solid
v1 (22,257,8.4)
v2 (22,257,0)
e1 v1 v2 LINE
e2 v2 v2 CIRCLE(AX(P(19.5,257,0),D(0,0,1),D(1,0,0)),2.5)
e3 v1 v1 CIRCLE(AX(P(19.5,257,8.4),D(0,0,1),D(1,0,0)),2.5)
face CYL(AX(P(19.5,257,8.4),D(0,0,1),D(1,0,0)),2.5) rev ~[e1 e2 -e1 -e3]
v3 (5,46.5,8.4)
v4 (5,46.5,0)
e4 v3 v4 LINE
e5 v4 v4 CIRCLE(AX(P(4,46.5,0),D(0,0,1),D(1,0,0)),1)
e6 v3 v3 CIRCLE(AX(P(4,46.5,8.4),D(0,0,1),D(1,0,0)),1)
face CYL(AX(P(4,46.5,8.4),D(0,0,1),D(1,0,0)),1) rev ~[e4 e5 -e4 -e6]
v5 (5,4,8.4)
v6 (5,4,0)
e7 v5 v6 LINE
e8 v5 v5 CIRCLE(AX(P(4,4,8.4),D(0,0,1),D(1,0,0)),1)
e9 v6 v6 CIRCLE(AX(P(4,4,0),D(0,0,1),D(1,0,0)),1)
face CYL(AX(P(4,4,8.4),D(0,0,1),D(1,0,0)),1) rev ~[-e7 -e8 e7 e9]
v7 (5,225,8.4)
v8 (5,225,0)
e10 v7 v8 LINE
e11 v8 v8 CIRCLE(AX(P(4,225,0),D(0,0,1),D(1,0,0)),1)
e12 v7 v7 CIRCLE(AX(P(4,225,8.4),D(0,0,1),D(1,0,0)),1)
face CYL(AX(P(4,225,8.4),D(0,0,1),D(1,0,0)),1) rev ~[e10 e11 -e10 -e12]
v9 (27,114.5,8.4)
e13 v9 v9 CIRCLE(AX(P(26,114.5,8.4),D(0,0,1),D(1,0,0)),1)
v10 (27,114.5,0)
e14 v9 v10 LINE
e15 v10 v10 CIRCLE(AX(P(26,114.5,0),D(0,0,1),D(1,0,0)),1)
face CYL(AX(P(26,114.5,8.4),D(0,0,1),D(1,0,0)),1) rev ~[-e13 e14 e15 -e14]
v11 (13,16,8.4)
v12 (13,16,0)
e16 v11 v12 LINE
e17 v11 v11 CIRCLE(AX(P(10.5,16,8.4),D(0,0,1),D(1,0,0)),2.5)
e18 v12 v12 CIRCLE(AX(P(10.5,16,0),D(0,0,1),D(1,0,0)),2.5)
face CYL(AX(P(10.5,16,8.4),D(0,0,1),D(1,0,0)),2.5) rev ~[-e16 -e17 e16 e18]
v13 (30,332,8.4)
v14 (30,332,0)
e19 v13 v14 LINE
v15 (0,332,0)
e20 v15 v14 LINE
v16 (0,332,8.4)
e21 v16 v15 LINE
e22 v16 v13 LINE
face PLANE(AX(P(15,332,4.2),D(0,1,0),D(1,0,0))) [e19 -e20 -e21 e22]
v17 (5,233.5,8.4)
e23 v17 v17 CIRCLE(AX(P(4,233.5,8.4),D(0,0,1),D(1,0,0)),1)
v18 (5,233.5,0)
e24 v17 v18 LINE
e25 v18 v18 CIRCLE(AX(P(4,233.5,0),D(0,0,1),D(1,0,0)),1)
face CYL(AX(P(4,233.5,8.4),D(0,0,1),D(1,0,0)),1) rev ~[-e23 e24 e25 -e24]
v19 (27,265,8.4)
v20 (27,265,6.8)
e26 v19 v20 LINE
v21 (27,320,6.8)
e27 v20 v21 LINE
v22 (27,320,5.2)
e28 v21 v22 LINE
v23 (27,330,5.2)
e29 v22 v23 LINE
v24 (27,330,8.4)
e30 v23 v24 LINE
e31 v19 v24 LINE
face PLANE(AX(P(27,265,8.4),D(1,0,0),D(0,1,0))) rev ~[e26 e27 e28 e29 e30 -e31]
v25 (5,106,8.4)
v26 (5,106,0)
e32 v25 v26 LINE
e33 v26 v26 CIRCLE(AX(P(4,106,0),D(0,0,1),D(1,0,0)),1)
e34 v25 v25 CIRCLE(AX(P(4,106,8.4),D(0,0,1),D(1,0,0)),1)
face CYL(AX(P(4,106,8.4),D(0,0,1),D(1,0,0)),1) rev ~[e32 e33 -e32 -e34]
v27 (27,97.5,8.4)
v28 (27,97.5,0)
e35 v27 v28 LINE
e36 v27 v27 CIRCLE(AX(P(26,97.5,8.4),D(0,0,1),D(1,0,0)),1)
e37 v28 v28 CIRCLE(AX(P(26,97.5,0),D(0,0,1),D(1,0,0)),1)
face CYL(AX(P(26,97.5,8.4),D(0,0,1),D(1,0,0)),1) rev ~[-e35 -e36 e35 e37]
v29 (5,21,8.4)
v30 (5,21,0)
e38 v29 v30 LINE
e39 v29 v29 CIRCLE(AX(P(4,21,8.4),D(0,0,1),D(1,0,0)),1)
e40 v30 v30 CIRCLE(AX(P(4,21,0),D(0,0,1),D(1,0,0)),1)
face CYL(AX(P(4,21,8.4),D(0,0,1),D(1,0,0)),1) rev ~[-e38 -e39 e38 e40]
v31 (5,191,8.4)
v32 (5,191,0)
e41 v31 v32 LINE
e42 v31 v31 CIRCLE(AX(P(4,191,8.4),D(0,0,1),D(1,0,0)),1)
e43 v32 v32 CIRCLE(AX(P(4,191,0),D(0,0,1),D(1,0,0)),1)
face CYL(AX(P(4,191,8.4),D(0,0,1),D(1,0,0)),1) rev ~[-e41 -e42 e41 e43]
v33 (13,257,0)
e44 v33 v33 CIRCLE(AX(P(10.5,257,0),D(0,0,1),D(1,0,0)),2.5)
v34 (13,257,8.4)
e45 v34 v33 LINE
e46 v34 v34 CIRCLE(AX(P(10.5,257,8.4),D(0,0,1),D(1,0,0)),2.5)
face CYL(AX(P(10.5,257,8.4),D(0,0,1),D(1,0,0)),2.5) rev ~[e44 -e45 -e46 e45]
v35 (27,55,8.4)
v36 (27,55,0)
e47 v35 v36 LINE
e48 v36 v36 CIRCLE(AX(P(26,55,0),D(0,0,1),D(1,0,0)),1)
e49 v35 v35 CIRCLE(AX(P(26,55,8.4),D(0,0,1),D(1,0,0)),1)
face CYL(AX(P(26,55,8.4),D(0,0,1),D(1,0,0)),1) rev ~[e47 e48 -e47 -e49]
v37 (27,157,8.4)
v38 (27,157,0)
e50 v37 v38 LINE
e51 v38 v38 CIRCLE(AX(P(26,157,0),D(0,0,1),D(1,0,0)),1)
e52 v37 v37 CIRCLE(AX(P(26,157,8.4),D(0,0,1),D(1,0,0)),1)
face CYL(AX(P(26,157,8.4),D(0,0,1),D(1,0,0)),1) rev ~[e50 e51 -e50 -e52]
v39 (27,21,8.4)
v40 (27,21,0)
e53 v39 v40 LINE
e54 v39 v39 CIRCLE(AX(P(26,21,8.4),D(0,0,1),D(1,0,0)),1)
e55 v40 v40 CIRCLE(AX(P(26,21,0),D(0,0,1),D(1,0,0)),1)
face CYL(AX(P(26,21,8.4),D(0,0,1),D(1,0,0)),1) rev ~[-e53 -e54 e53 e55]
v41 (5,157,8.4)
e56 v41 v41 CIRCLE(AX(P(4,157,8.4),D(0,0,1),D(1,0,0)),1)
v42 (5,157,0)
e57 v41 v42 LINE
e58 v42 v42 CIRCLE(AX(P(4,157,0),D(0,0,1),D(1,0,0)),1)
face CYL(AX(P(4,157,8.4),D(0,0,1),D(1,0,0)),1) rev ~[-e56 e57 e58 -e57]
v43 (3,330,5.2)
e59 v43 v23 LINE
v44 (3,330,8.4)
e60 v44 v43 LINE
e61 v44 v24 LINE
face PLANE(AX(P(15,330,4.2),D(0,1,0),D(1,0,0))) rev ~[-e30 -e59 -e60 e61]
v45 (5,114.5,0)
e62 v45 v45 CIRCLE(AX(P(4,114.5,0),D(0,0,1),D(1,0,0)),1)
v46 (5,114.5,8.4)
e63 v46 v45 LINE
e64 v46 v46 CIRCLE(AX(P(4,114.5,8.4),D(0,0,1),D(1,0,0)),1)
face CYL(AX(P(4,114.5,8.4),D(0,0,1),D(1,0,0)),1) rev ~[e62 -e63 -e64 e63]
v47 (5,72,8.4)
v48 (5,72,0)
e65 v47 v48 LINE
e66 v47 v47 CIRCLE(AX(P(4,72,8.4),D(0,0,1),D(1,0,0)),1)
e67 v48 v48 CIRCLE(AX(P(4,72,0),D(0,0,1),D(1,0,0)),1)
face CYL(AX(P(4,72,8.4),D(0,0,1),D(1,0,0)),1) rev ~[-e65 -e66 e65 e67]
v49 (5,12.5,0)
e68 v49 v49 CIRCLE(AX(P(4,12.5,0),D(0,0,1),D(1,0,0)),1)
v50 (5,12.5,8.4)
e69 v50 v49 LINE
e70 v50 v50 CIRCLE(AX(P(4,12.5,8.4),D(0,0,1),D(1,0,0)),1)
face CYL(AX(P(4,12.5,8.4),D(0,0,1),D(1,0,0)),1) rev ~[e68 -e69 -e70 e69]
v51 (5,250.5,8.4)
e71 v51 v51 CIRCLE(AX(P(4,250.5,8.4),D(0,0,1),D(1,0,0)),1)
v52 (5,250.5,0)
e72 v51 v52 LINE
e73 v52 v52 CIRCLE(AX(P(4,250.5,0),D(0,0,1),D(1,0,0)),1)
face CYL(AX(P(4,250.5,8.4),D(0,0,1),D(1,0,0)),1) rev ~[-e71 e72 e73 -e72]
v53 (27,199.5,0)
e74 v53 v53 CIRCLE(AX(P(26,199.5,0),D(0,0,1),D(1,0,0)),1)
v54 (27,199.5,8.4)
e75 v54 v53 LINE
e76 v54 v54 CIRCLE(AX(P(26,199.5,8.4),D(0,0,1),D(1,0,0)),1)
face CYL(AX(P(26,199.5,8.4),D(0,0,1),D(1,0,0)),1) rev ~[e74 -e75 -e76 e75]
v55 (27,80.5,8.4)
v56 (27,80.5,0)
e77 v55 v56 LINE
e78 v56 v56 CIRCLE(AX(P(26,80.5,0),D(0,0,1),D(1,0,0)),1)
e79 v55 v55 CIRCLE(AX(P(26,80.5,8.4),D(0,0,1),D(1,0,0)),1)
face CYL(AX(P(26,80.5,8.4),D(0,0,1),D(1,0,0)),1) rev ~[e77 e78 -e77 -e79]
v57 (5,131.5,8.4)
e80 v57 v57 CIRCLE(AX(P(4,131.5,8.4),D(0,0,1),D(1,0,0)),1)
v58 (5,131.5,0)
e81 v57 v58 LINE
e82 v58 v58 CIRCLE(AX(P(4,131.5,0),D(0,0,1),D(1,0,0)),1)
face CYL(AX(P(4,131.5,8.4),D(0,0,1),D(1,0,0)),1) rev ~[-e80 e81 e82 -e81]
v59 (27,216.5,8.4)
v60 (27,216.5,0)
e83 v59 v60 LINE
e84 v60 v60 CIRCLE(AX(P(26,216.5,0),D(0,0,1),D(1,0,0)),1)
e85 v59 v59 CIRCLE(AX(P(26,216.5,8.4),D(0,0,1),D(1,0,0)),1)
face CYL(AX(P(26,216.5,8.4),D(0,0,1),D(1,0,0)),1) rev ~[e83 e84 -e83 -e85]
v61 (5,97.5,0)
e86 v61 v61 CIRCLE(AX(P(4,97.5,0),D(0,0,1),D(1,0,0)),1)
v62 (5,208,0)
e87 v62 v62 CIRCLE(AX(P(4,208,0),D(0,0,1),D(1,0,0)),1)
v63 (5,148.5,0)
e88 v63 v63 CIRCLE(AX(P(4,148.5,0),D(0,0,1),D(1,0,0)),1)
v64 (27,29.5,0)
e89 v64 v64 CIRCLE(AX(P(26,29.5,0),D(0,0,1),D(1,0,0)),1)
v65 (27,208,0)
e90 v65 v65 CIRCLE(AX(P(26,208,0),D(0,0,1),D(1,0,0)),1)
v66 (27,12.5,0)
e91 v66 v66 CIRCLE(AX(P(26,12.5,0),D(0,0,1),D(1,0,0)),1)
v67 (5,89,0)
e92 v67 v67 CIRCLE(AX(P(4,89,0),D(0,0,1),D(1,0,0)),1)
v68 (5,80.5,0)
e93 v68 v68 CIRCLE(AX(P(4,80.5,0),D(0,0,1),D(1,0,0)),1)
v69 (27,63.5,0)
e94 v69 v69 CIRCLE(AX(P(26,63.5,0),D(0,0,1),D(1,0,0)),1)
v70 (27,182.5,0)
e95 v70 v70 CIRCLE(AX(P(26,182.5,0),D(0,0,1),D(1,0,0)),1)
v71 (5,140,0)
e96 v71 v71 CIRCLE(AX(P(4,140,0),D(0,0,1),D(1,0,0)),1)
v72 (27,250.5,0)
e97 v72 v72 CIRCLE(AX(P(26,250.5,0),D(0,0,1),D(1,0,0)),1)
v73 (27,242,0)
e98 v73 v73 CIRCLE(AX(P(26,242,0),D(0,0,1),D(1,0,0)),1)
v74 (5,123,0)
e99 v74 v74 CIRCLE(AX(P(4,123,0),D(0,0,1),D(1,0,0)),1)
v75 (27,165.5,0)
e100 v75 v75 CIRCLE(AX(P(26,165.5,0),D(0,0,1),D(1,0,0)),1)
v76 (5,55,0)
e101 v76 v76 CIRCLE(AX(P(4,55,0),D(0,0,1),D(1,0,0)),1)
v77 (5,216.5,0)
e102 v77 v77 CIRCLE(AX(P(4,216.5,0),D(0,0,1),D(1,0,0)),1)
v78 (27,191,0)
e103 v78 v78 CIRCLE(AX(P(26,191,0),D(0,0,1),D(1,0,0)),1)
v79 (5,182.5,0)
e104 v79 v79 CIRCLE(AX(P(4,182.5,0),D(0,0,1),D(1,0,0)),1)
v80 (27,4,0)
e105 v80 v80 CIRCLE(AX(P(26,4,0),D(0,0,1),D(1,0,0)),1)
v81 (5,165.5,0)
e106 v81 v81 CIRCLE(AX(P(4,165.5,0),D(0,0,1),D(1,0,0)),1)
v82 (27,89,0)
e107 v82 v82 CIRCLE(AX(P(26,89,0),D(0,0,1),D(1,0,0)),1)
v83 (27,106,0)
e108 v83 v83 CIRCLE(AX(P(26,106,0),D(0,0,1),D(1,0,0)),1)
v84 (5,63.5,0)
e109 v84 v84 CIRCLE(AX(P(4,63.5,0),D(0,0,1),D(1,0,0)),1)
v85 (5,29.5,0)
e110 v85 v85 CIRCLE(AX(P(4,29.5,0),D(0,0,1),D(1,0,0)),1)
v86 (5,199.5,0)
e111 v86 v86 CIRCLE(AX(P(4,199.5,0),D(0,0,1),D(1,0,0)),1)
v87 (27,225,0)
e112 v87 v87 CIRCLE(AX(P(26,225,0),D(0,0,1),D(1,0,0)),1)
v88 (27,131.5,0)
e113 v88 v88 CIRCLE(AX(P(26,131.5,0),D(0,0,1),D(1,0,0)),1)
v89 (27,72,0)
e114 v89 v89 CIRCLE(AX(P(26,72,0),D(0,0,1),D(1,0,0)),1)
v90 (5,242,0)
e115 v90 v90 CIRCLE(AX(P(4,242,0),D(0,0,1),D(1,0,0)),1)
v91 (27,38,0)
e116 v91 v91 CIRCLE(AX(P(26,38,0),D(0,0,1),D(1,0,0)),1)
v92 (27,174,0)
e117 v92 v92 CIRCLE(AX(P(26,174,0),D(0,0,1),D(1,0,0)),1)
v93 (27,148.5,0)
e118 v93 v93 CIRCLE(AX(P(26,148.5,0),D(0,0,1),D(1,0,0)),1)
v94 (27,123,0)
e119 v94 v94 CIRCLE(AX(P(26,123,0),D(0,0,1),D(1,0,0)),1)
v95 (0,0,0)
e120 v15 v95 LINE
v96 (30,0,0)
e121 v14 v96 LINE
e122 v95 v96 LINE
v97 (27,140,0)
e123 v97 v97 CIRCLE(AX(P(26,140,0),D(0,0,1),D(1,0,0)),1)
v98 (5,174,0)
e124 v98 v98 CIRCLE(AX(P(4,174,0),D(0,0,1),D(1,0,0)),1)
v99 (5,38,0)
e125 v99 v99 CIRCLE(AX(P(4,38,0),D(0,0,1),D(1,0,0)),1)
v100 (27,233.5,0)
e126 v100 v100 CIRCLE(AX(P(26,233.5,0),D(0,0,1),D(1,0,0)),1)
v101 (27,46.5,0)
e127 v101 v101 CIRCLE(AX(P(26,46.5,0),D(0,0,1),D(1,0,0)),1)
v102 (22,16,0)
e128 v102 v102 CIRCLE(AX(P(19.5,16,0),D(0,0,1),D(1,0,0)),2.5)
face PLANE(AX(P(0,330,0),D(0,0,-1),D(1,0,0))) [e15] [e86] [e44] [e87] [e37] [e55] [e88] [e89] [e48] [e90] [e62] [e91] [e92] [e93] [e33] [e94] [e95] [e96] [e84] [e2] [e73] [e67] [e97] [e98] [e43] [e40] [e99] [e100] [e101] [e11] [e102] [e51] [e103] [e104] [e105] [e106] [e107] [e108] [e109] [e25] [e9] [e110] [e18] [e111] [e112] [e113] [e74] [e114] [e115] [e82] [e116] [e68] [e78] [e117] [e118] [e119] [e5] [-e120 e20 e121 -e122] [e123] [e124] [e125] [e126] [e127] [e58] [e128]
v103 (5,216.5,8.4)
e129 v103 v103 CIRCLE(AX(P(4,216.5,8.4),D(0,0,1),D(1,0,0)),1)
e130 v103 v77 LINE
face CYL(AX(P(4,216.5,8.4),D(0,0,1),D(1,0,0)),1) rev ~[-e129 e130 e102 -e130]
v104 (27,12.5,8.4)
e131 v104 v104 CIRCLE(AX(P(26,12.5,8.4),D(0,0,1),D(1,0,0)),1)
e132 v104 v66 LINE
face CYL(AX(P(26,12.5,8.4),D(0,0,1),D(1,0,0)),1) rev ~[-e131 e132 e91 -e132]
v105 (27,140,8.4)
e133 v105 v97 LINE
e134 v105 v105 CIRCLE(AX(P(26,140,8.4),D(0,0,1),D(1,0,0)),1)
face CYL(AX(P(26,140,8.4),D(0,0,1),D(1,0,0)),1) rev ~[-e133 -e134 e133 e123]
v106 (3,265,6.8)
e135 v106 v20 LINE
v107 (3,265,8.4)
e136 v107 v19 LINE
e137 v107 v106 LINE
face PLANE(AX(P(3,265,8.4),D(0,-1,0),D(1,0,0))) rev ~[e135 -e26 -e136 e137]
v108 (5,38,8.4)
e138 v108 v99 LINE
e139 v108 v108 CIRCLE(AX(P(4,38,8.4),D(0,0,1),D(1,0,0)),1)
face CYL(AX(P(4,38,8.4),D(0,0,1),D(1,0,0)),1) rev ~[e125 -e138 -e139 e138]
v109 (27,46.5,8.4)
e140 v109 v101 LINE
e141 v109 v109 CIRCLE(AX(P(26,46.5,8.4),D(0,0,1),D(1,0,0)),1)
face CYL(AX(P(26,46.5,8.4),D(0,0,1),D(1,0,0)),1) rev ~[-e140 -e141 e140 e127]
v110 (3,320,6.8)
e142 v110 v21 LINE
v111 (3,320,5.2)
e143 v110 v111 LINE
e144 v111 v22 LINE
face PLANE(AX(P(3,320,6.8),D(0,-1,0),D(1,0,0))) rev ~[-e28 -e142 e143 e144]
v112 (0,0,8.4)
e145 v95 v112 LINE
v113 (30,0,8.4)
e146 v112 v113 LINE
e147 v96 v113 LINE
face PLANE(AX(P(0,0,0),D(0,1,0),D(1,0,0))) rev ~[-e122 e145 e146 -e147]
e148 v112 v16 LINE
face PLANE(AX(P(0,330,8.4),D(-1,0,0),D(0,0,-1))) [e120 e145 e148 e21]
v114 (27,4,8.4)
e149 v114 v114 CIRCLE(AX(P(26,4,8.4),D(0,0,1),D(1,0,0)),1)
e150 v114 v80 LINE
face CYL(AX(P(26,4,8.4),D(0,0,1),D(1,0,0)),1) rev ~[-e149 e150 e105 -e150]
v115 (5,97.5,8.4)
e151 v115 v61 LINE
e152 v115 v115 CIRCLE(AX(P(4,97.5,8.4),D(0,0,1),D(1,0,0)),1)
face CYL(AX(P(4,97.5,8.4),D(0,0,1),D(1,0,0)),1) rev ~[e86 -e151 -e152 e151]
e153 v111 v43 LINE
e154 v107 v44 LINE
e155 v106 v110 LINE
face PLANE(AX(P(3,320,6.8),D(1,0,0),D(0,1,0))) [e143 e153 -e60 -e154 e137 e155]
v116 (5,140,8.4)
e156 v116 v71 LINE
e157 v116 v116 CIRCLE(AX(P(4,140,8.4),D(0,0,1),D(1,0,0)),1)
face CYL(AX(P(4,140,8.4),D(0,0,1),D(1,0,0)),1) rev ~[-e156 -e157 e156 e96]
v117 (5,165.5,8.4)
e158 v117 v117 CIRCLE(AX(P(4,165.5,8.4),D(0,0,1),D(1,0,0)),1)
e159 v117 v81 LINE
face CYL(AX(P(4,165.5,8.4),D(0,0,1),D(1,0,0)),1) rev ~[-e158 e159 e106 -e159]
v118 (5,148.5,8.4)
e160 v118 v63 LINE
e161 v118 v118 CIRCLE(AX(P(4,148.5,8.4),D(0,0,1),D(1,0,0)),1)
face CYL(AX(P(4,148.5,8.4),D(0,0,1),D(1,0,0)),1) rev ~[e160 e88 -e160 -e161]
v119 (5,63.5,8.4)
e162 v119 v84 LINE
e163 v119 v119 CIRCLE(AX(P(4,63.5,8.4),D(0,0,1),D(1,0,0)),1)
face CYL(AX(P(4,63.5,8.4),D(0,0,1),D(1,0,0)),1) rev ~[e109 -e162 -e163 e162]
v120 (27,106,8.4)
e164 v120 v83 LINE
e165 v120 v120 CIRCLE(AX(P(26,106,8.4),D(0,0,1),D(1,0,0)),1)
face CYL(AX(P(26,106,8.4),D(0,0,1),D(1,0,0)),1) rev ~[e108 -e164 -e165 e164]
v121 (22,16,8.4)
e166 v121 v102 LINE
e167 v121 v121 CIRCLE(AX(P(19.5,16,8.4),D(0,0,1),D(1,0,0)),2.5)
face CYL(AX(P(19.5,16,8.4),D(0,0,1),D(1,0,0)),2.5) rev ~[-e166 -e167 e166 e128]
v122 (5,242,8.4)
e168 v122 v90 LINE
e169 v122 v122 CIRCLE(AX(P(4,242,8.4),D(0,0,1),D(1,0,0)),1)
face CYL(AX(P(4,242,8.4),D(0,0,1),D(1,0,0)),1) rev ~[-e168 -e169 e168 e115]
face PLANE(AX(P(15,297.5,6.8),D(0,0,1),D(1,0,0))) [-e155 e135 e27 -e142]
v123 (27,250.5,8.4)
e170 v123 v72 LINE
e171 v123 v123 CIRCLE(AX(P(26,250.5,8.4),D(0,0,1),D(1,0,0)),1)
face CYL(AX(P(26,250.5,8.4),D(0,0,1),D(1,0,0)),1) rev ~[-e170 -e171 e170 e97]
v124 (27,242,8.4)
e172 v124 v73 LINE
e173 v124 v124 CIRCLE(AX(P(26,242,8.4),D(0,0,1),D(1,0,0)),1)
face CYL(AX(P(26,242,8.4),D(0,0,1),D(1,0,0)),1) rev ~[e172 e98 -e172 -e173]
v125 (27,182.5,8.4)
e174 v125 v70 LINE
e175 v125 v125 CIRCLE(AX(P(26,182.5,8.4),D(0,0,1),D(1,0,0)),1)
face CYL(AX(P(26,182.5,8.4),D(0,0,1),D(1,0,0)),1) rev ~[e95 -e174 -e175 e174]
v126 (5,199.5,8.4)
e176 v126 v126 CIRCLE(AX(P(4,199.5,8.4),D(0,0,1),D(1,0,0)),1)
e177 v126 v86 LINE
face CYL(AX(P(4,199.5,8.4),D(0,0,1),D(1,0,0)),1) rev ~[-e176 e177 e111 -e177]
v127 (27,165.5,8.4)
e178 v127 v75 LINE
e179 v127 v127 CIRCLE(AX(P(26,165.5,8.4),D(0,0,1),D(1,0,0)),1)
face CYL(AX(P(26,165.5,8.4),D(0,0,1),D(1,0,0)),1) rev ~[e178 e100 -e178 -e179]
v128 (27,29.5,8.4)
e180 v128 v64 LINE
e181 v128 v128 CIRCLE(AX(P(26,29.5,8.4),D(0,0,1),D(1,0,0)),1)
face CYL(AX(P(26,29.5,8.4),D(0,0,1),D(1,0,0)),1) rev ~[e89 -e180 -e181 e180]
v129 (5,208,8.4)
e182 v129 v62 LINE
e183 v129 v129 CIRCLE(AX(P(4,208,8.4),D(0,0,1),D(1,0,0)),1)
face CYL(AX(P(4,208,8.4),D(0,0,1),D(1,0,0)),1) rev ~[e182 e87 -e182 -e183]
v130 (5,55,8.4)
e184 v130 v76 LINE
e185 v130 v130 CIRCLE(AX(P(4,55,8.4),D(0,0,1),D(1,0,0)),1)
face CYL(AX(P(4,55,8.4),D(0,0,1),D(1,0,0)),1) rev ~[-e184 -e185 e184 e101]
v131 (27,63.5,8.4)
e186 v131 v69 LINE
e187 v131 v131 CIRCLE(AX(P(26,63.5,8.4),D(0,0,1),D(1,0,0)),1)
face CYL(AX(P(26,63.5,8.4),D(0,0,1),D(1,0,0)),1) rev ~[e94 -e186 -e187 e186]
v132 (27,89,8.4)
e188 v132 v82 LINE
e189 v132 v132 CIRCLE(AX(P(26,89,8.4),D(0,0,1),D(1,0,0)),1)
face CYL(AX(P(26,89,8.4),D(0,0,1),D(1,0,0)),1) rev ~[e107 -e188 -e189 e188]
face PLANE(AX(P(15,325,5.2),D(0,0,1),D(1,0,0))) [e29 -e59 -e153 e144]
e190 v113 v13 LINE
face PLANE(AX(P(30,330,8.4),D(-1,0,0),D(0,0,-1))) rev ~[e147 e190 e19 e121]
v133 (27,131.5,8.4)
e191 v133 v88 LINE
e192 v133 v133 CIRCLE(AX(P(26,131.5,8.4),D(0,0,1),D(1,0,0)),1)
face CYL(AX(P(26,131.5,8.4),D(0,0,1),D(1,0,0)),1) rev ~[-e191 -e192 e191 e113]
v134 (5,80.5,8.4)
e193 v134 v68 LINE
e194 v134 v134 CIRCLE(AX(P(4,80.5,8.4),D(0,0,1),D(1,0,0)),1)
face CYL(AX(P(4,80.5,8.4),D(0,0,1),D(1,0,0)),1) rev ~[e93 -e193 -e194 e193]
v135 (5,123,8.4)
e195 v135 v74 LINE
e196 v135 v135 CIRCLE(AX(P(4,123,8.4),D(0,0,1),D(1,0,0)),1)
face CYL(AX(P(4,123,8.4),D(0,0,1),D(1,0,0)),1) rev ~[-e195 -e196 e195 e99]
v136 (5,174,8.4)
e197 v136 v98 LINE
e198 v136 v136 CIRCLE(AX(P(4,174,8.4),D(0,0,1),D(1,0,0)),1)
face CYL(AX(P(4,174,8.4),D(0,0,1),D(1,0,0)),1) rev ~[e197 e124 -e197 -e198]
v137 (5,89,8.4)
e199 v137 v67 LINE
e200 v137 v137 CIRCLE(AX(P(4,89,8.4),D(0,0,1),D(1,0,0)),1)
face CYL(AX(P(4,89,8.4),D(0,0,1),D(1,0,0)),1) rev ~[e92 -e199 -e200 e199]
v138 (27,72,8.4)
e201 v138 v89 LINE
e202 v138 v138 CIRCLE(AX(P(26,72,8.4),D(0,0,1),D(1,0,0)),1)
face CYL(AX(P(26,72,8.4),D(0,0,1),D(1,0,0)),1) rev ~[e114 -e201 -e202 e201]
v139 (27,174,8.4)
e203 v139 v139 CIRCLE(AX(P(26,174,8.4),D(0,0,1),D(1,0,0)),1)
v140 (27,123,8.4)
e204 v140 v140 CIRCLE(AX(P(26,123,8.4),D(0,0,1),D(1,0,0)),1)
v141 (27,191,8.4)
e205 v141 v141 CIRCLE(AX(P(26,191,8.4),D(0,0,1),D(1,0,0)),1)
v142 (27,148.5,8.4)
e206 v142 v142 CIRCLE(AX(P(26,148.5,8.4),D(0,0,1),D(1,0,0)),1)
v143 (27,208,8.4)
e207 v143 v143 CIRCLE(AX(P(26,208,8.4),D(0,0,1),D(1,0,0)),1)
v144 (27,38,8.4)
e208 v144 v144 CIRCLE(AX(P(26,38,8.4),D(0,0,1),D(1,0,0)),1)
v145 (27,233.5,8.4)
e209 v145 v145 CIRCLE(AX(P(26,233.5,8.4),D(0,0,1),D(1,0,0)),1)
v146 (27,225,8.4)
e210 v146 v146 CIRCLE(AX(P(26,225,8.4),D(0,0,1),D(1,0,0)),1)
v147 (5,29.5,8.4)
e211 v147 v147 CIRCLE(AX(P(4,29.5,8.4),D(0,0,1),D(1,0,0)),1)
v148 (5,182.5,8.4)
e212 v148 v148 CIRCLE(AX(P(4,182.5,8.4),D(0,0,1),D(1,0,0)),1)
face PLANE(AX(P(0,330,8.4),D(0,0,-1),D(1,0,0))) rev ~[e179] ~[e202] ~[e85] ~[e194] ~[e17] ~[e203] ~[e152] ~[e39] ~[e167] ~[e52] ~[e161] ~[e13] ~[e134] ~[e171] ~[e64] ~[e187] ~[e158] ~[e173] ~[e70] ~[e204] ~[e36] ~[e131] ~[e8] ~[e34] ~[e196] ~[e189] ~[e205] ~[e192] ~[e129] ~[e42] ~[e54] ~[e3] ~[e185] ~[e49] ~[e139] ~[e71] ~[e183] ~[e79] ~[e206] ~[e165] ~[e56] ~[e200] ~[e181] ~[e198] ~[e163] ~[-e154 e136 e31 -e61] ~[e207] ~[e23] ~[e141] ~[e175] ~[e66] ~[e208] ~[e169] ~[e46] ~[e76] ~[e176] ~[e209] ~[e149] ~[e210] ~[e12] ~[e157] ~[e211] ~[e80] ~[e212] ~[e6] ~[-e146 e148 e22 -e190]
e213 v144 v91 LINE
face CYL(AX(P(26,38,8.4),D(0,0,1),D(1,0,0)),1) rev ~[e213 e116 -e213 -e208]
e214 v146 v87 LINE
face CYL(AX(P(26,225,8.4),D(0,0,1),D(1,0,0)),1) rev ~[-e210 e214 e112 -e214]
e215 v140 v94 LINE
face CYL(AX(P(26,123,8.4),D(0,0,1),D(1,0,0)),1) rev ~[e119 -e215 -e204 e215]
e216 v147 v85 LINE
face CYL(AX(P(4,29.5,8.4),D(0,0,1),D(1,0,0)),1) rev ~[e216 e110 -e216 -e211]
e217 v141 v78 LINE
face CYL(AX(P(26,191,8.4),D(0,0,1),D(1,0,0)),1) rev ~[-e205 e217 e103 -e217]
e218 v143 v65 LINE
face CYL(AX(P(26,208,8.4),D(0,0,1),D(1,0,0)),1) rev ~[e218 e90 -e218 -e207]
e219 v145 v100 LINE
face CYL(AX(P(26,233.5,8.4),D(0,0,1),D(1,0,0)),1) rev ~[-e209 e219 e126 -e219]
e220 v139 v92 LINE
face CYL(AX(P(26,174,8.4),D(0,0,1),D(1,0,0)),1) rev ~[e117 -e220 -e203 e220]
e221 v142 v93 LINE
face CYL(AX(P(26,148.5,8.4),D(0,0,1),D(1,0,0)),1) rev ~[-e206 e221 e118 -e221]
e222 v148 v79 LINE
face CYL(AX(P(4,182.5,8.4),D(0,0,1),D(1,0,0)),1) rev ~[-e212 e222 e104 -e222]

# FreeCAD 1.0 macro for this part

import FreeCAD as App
import Part
import Sketcher
Q = App.Units.Quantity


def add_polygon(sketch, points):
    """Adds a closed chain of lines whose ends are joined by coincident constraints."""
    first, n = sketch.GeometryCount, len(points)
    for a, b in zip(points, points[1:] + points[:1]):
        sketch.addGeometry(Part.LineSegment(App.Vector(*a, 0), App.Vector(*b, 0)), False)
    for i in range(n):
        sketch.addConstraint(Sketcher.Constraint("Coincident", first + i, 2, first + (i + 1) % n, 1))

doc = App.newDocument("Part")
body = doc.addObject("PartDesign::Body", "Body")

# Sketch on XY plane
sketch1 = body.newObject("Sketcher::SketchObject", "Sketch")
sketch1.AttachmentSupport = (doc.getObject("XY_Plane"), [""])
sketch1.MapMode = "FlatFace"
add_polygon(sketch1, [(0, 330), (0, 0), (30, 0), (30, 330)])  # lines 0-3
sketch1.addConstraint([
    Sketcher.Constraint("Vertical", 0),
    Sketcher.Constraint("Horizontal", 1),
    Sketcher.Constraint("Vertical", 2),
    Sketcher.Constraint("Horizontal", 3),
    Sketcher.Constraint("Coincident", 0, 2, -1, 1),
    Sketcher.Constraint("DistanceX", 1, 1, 1, 2, Q("30 mm")),
    Sketcher.Constraint("DistanceY", 0, 2, 0, 1, Q("330 mm")),
])
pad1 = body.newObject("PartDesign::Pad", "Pad")
pad1.Profile = sketch1
pad1.Length = 8.4

# Sketch on XY plane
sketch2 = body.newObject("Sketcher::SketchObject", "Sketch001")
sketch2.AttachmentSupport = (doc.getObject("XY_Plane"), [""])
sketch2.MapMode = "FlatFace"
sketch2.AttachmentOffset = App.Placement(App.Vector(0, 0, 8.4), App.Rotation())
sketch2.addGeometry(Part.Circle(App.Vector(26, 4, 0), App.Vector(0, 0, 1), 1), False)
sketch2.addConstraint([
    Sketcher.Constraint("Diameter", 0, Q("2 mm")),
    Sketcher.Constraint("DistanceX", -1, 1, 0, 3, Q("26 mm")),
    Sketcher.Constraint("DistanceY", -1, 1, 0, 3, Q("4 mm")),
])
pocket1 = body.newObject("PartDesign::Pocket", "Pocket")
pocket1.Profile = sketch2
pocket1.Type = "ThroughAll"
doc.recompute()

linearpattern = body.newObject("PartDesign::LinearPattern", "LinearPattern")
linearpattern.Originals = [pocket1]
linearpattern.Direction = (doc.getObject("Y_Axis"), [""])
linearpattern.Mode = "offset"
linearpattern.Offset = 8.5
linearpattern.Occurrences = 30
body.Tip = linearpattern
doc.recompute()

linearpattern2 = body.newObject("PartDesign::LinearPattern", "LinearPattern001")
linearpattern2.Originals = [pocket1]
linearpattern2.Direction = (doc.getObject("X_Axis"), [""])
linearpattern2.Mode = "offset"
linearpattern2.Offset = 22
linearpattern2.Occurrences = 2
linearpattern2.Reversed = True
body.Tip = linearpattern2

# Sketch on XY plane
sketch3 = body.newObject("Sketcher::SketchObject", "Sketch002")
sketch3.AttachmentSupport = (doc.getObject("XY_Plane"), [""])
sketch3.MapMode = "FlatFace"
sketch3.AttachmentOffset = App.Placement(App.Vector(0, 0, 8.4), App.Rotation())
sketch3.addGeometry(Part.Circle(App.Vector(4, 12.5, 0), App.Vector(0, 0, 1), 1), False)
sketch3.addConstraint([
    Sketcher.Constraint("Diameter", 0, Q("2 mm")),
    Sketcher.Constraint("DistanceX", -1, 1, 0, 3, Q("4 mm")),
    Sketcher.Constraint("DistanceY", -1, 1, 0, 3, Q("12.5 mm")),
])
pocket2 = body.newObject("PartDesign::Pocket", "Pocket001")
pocket2.Profile = sketch3
pocket2.Type = "ThroughAll"

# Sketch on XY plane
sketch4 = body.newObject("Sketcher::SketchObject", "Sketch003")
sketch4.AttachmentSupport = (doc.getObject("XY_Plane"), [""])
sketch4.MapMode = "FlatFace"
sketch4.AttachmentOffset = App.Placement(App.Vector(0, 0, 8.4), App.Rotation())
sketch4.addGeometry(Part.Circle(App.Vector(4, 21, 0), App.Vector(0, 0, 1), 1), False)
sketch4.addConstraint([
    Sketcher.Constraint("Diameter", 0, Q("2 mm")),
    Sketcher.Constraint("DistanceX", -1, 1, 0, 3, Q("4 mm")),
    Sketcher.Constraint("DistanceY", -1, 1, 0, 3, Q("21 mm")),
])
pocket3 = body.newObject("PartDesign::Pocket", "Pocket002")
pocket3.Profile = sketch4
pocket3.Type = "ThroughAll"

# Sketch on XY plane
sketch5 = body.newObject("Sketcher::SketchObject", "Sketch004")
sketch5.AttachmentSupport = (doc.getObject("XY_Plane"), [""])
sketch5.MapMode = "FlatFace"
sketch5.AttachmentOffset = App.Placement(App.Vector(0, 0, 8.4), App.Rotation())
sketch5.addGeometry(Part.Circle(App.Vector(4, 29.5, 0), App.Vector(0, 0, 1), 1), False)
sketch5.addConstraint([
    Sketcher.Constraint("Diameter", 0, Q("2 mm")),
    Sketcher.Constraint("DistanceX", -1, 1, 0, 3, Q("4 mm")),
    Sketcher.Constraint("DistanceY", -1, 1, 0, 3, Q("29.5 mm")),
])
pocket4 = body.newObject("PartDesign::Pocket", "Pocket003")
pocket4.Profile = sketch5
pocket4.Type = "ThroughAll"

# Sketch on XY plane
sketch6 = body.newObject("Sketcher::SketchObject", "Sketch005")
sketch6.AttachmentSupport = (doc.getObject("XY_Plane"), [""])
sketch6.MapMode = "FlatFace"
sketch6.AttachmentOffset = App.Placement(App.Vector(0, 0, 8.4), App.Rotation())
sketch6.addGeometry(Part.Circle(App.Vector(4, 38, 0), App.Vector(0, 0, 1), 1), False)
sketch6.addConstraint([
    Sketcher.Constraint("Diameter", 0, Q("2 mm")),
    Sketcher.Constraint("DistanceX", -1, 1, 0, 3, Q("4 mm")),
    Sketcher.Constraint("DistanceY", -1, 1, 0, 3, Q("38 mm")),
])
pocket5 = body.newObject("PartDesign::Pocket", "Pocket004")
pocket5.Profile = sketch6
pocket5.Type = "ThroughAll"

# Sketch on XY plane
sketch7 = body.newObject("Sketcher::SketchObject", "Sketch006")
sketch7.AttachmentSupport = (doc.getObject("XY_Plane"), [""])
sketch7.MapMode = "FlatFace"
sketch7.AttachmentOffset = App.Placement(App.Vector(0, 0, 8.4), App.Rotation())
sketch7.addGeometry(Part.Circle(App.Vector(4, 46.5, 0), App.Vector(0, 0, 1), 1), False)
sketch7.addConstraint([
    Sketcher.Constraint("Diameter", 0, Q("2 mm")),
    Sketcher.Constraint("DistanceX", -1, 1, 0, 3, Q("4 mm")),
    Sketcher.Constraint("DistanceY", -1, 1, 0, 3, Q("46.5 mm")),
])
pocket6 = body.newObject("PartDesign::Pocket", "Pocket005")
pocket6.Profile = sketch7
pocket6.Type = "ThroughAll"

# Sketch on XY plane
sketch8 = body.newObject("Sketcher::SketchObject", "Sketch007")
sketch8.AttachmentSupport = (doc.getObject("XY_Plane"), [""])
sketch8.MapMode = "FlatFace"
sketch8.AttachmentOffset = App.Placement(App.Vector(0, 0, 8.4), App.Rotation())
sketch8.addGeometry(Part.Circle(App.Vector(4, 55, 0), App.Vector(0, 0, 1), 1), False)
sketch8.addConstraint([
    Sketcher.Constraint("Diameter", 0, Q("2 mm")),
    Sketcher.Constraint("DistanceX", -1, 1, 0, 3, Q("4 mm")),
    Sketcher.Constraint("DistanceY", -1, 1, 0, 3, Q("55 mm")),
])
pocket7 = body.newObject("PartDesign::Pocket", "Pocket006")
pocket7.Profile = sketch8
pocket7.Type = "ThroughAll"

# Sketch on XY plane
sketch9 = body.newObject("Sketcher::SketchObject", "Sketch008")
sketch9.AttachmentSupport = (doc.getObject("XY_Plane"), [""])
sketch9.MapMode = "FlatFace"
sketch9.AttachmentOffset = App.Placement(App.Vector(0, 0, 8.4), App.Rotation())
sketch9.addGeometry(Part.Circle(App.Vector(4, 63.5, 0), App.Vector(0, 0, 1), 1), False)
sketch9.addConstraint([
    Sketcher.Constraint("Diameter", 0, Q("2 mm")),
    Sketcher.Constraint("DistanceX", -1, 1, 0, 3, Q("4 mm")),
    Sketcher.Constraint("DistanceY", -1, 1, 0, 3, Q("63.5 mm")),
])
pocket8 = body.newObject("PartDesign::Pocket", "Pocket007")
pocket8.Profile = sketch9
pocket8.Type = "ThroughAll"

# Sketch on XY plane
sketch10 = body.newObject("Sketcher::SketchObject", "Sketch009")
sketch10.AttachmentSupport = (doc.getObject("XY_Plane"), [""])
sketch10.MapMode = "FlatFace"
sketch10.AttachmentOffset = App.Placement(App.Vector(0, 0, 8.4), App.Rotation())
sketch10.addGeometry(Part.Circle(App.Vector(4, 72, 0), App.Vector(0, 0, 1), 1), False)
sketch10.addConstraint([
    Sketcher.Constraint("Diameter", 0, Q("2 mm")),
    Sketcher.Constraint("DistanceX", -1, 1, 0, 3, Q("4 mm")),
    Sketcher.Constraint("DistanceY", -1, 1, 0, 3, Q("72 mm")),
])
pocket9 = body.newObject("PartDesign::Pocket", "Pocket008")
pocket9.Profile = sketch10
pocket9.Type = "ThroughAll"

# Sketch on XY plane
sketch11 = body.newObject("Sketcher::SketchObject", "Sketch010")
sketch11.AttachmentSupport = (doc.getObject("XY_Plane"), [""])
sketch11.MapMode = "FlatFace"
sketch11.AttachmentOffset = App.Placement(App.Vector(0, 0, 8.4), App.Rotation())
sketch11.addGeometry(Part.Circle(App.Vector(4, 80.5, 0), App.Vector(0, 0, 1), 1), False)
sketch11.addConstraint([
    Sketcher.Constraint("Diameter", 0, Q("2 mm")),
    Sketcher.Constraint("DistanceX", -1, 1, 0, 3, Q("4 mm")),
    Sketcher.Constraint("DistanceY", -1, 1, 0, 3, Q("80.5 mm")),
])
pocket10 = body.newObject("PartDesign::Pocket", "Pocket009")
pocket10.Profile = sketch11
pocket10.Type = "ThroughAll"

# Sketch on XY plane
sketch12 = body.newObject("Sketcher::SketchObject", "Sketch011")
sketch12.AttachmentSupport = (doc.getObject("XY_Plane"), [""])
sketch12.MapMode = "FlatFace"
sketch12.AttachmentOffset = App.Placement(App.Vector(0, 0, 8.4), App.Rotation())
sketch12.addGeometry(Part.Circle(App.Vector(4, 89, 0), App.Vector(0, 0, 1), 1), False)
sketch12.addConstraint([
    Sketcher.Constraint("Diameter", 0, Q("2 mm")),
    Sketcher.Constraint("DistanceX", -1, 1, 0, 3, Q("4 mm")),
    Sketcher.Constraint("DistanceY", -1, 1, 0, 3, Q("89 mm")),
])
pocket11 = body.newObject("PartDesign::Pocket", "Pocket010")
pocket11.Profile = sketch12
pocket11.Type = "ThroughAll"

# Sketch on XY plane
sketch13 = body.newObject("Sketcher::SketchObject", "Sketch012")
sketch13.AttachmentSupport = (doc.getObject("XY_Plane"), [""])
sketch13.MapMode = "FlatFace"
sketch13.AttachmentOffset = App.Placement(App.Vector(0, 0, 8.4), App.Rotation())
sketch13.addGeometry(Part.Circle(App.Vector(4, 97.5, 0), App.Vector(0, 0, 1), 1), False)
sketch13.addConstraint([
    Sketcher.Constraint("Diameter", 0, Q("2 mm")),
    Sketcher.Constraint("DistanceX", -1, 1, 0, 3, Q("4 mm")),
    Sketcher.Constraint("DistanceY", -1, 1, 0, 3, Q("97.5 mm")),
])
pocket12 = body.newObject("PartDesign::Pocket", "Pocket011")
pocket12.Profile = sketch13
pocket12.Type = "ThroughAll"

# Sketch on XY plane
sketch14 = body.newObject("Sketcher::SketchObject", "Sketch013")
sketch14.AttachmentSupport = (doc.getObject("XY_Plane"), [""])
sketch14.MapMode = "FlatFace"
sketch14.AttachmentOffset = App.Placement(App.Vector(0, 0, 8.4), App.Rotation())
sketch14.addGeometry(Part.Circle(App.Vector(4, 106, 0), App.Vector(0, 0, 1), 1), False)
sketch14.addConstraint([
    Sketcher.Constraint("Diameter", 0, Q("2 mm")),
    Sketcher.Constraint("DistanceX", -1, 1, 0, 3, Q("4 mm")),
    Sketcher.Constraint("DistanceY", -1, 1, 0, 3, Q("106 mm")),
])
pocket13 = body.newObject("PartDesign::Pocket", "Pocket012")
pocket13.Profile = sketch14
pocket13.Type = "ThroughAll"

# Sketch on XY plane
sketch15 = body.newObject("Sketcher::SketchObject", "Sketch014")
sketch15.AttachmentSupport = (doc.getObject("XY_Plane"), [""])
sketch15.MapMode = "FlatFace"
sketch15.AttachmentOffset = App.Placement(App.Vector(0, 0, 8.4), App.Rotation())
sketch15.addGeometry(Part.Circle(App.Vector(4, 114.5, 0), App.Vector(0, 0, 1), 1), False)
sketch15.addConstraint([
    Sketcher.Constraint("Diameter", 0, Q("2 mm")),
    Sketcher.Constraint("DistanceX", -1, 1, 0, 3, Q("4 mm")),
    Sketcher.Constraint("DistanceY", -1, 1, 0, 3, Q("114.5 mm")),
])
pocket14 = body.newObject("PartDesign::Pocket", "Pocket013")
pocket14.Profile = sketch15
pocket14.Type = "ThroughAll"

# Sketch on XY plane
sketch16 = body.newObject("Sketcher::SketchObject", "Sketch015")
sketch16.AttachmentSupport = (doc.getObject("XY_Plane"), [""])
sketch16.MapMode = "FlatFace"
sketch16.AttachmentOffset = App.Placement(App.Vector(0, 0, 8.4), App.Rotation())
sketch16.addGeometry(Part.Circle(App.Vector(4, 123, 0), App.Vector(0, 0, 1), 1), False)
sketch16.addConstraint([
    Sketcher.Constraint("Diameter", 0, Q("2 mm")),
    Sketcher.Constraint("DistanceX", -1, 1, 0, 3, Q("4 mm")),
    Sketcher.Constraint("DistanceY", -1, 1, 0, 3, Q("123 mm")),
])
pocket15 = body.newObject("PartDesign::Pocket", "Pocket014")
pocket15.Profile = sketch16
pocket15.Type = "ThroughAll"

# Sketch on XY plane
sketch17 = body.newObject("Sketcher::SketchObject", "Sketch016")
sketch17.AttachmentSupport = (doc.getObject("XY_Plane"), [""])
sketch17.MapMode = "FlatFace"
sketch17.AttachmentOffset = App.Placement(App.Vector(0, 0, 8.4), App.Rotation())
sketch17.addGeometry(Part.Circle(App.Vector(4, 131.5, 0), App.Vector(0, 0, 1), 1), False)
sketch17.addConstraint([
    Sketcher.Constraint("Diameter", 0, Q("2 mm")),
    Sketcher.Constraint("DistanceX", -1, 1, 0, 3, Q("4 mm")),
    Sketcher.Constraint("DistanceY", -1, 1, 0, 3, Q("131.5 mm")),
])
pocket16 = body.newObject("PartDesign::Pocket", "Pocket015")
pocket16.Profile = sketch17
pocket16.Type = "ThroughAll"

# Sketch on XY plane
sketch18 = body.newObject("Sketcher::SketchObject", "Sketch017")
sketch18.AttachmentSupport = (doc.getObject("XY_Plane"), [""])
sketch18.MapMode = "FlatFace"
sketch18.AttachmentOffset = App.Placement(App.Vector(0, 0, 8.4), App.Rotation())
sketch18.addGeometry(Part.Circle(App.Vector(4, 140, 0), App.Vector(0, 0, 1), 1), False)
sketch18.addConstraint([
    Sketcher.Constraint("Diameter", 0, Q("2 mm")),
    Sketcher.Constraint("DistanceX", -1, 1, 0, 3, Q("4 mm")),
    Sketcher.Constraint("DistanceY", -1, 1, 0, 3, Q("140 mm")),
])
pocket17 = body.newObject("PartDesign::Pocket", "Pocket016")
pocket17.Profile = sketch18
pocket17.Type = "ThroughAll"

# Sketch on XY plane
sketch19 = body.newObject("Sketcher::SketchObject", "Sketch018")
sketch19.AttachmentSupport = (doc.getObject("XY_Plane"), [""])
sketch19.MapMode = "FlatFace"
sketch19.AttachmentOffset = App.Placement(App.Vector(0, 0, 8.4), App.Rotation())
sketch19.addGeometry(Part.Circle(App.Vector(4, 148.5, 0), App.Vector(0, 0, 1), 1), False)
sketch19.addConstraint([
    Sketcher.Constraint("Diameter", 0, Q("2 mm")),
    Sketcher.Constraint("DistanceX", -1, 1, 0, 3, Q("4 mm")),
    Sketcher.Constraint("DistanceY", -1, 1, 0, 3, Q("148.5 mm")),
])
pocket18 = body.newObject("PartDesign::Pocket", "Pocket017")
pocket18.Profile = sketch19
pocket18.Type = "ThroughAll"

# Sketch on XY plane
sketch20 = body.newObject("Sketcher::SketchObject", "Sketch019")
sketch20.AttachmentSupport = (doc.getObject("XY_Plane"), [""])
sketch20.MapMode = "FlatFace"
sketch20.AttachmentOffset = App.Placement(App.Vector(0, 0, 8.4), App.Rotation())
sketch20.addGeometry(Part.Circle(App.Vector(4, 157, 0), App.Vector(0, 0, 1), 1), False)
sketch20.addConstraint([
    Sketcher.Constraint("Diameter", 0, Q("2 mm")),
    Sketcher.Constraint("DistanceX", -1, 1, 0, 3, Q("4 mm")),
    Sketcher.Constraint("DistanceY", -1, 1, 0, 3, Q("157 mm")),
])
pocket19 = body.newObject("PartDesign::Pocket", "Pocket018")
pocket19.Profile = sketch20
pocket19.Type = "ThroughAll"

# Sketch on XY plane
sketch21 = body.newObject("Sketcher::SketchObject", "Sketch020")
sketch21.AttachmentSupport = (doc.getObject("XY_Plane"), [""])
sketch21.MapMode = "FlatFace"
sketch21.AttachmentOffset = App.Placement(App.Vector(0, 0, 8.4), App.Rotation())
sketch21.addGeometry(Part.Circle(App.Vector(4, 165.5, 0), App.Vector(0, 0, 1), 1), False)
sketch21.addConstraint([
    Sketcher.Constraint("Diameter", 0, Q("2 mm")),
    Sketcher.Constraint("DistanceX", -1, 1, 0, 3, Q("4 mm")),
    Sketcher.Constraint("DistanceY", -1, 1, 0, 3, Q("165.5 mm")),
])
pocket20 = body.newObject("PartDesign::Pocket", "Pocket019")
pocket20.Profile = sketch21
pocket20.Type = "ThroughAll"

# Sketch on XY plane
sketch22 = body.newObject("Sketcher::SketchObject", "Sketch021")
sketch22.AttachmentSupport = (doc.getObject("XY_Plane"), [""])
sketch22.MapMode = "FlatFace"
sketch22.AttachmentOffset = App.Placement(App.Vector(0, 0, 8.4), App.Rotation())
sketch22.addGeometry(Part.Circle(App.Vector(4, 174, 0), App.Vector(0, 0, 1), 1), False)
sketch22.addConstraint([
    Sketcher.Constraint("Diameter", 0, Q("2 mm")),
    Sketcher.Constraint("DistanceX", -1, 1, 0, 3, Q("4 mm")),
    Sketcher.Constraint("DistanceY", -1, 1, 0, 3, Q("174 mm")),
])
pocket21 = body.newObject("PartDesign::Pocket", "Pocket020")
pocket21.Profile = sketch22
pocket21.Type = "ThroughAll"

# Sketch on XY plane
sketch23 = body.newObject("Sketcher::SketchObject", "Sketch022")
sketch23.AttachmentSupport = (doc.getObject("XY_Plane"), [""])
sketch23.MapMode = "FlatFace"
sketch23.AttachmentOffset = App.Placement(App.Vector(0, 0, 8.4), App.Rotation())
sketch23.addGeometry(Part.Circle(App.Vector(4, 182.5, 0), App.Vector(0, 0, 1), 1), False)
sketch23.addConstraint([
    Sketcher.Constraint("Diameter", 0, Q("2 mm")),
    Sketcher.Constraint("DistanceX", -1, 1, 0, 3, Q("4 mm")),
    Sketcher.Constraint("DistanceY", -1, 1, 0, 3, Q("182.5 mm")),
])
pocket22 = body.newObject("PartDesign::Pocket", "Pocket021")
pocket22.Profile = sketch23
pocket22.Type = "ThroughAll"

# Sketch on XY plane
sketch24 = body.newObject("Sketcher::SketchObject", "Sketch023")
sketch24.AttachmentSupport = (doc.getObject("XY_Plane"), [""])
sketch24.MapMode = "FlatFace"
sketch24.AttachmentOffset = App.Placement(App.Vector(0, 0, 8.4), App.Rotation())
sketch24.addGeometry(Part.Circle(App.Vector(4, 191, 0), App.Vector(0, 0, 1), 1), False)
sketch24.addConstraint([
    Sketcher.Constraint("Diameter", 0, Q("2 mm")),
    Sketcher.Constraint("DistanceX", -1, 1, 0, 3, Q("4 mm")),
    Sketcher.Constraint("DistanceY", -1, 1, 0, 3, Q("191 mm")),
])
pocket23 = body.newObject("PartDesign::Pocket", "Pocket022")
pocket23.Profile = sketch24
pocket23.Type = "ThroughAll"

# Sketch on XY plane
sketch25 = body.newObject("Sketcher::SketchObject", "Sketch024")
sketch25.AttachmentSupport = (doc.getObject("XY_Plane"), [""])
sketch25.MapMode = "FlatFace"
sketch25.AttachmentOffset = App.Placement(App.Vector(0, 0, 8.4), App.Rotation())
sketch25.addGeometry(Part.Circle(App.Vector(4, 199.5, 0), App.Vector(0, 0, 1), 1), False)
sketch25.addConstraint([
    Sketcher.Constraint("Diameter", 0, Q("2 mm")),
    Sketcher.Constraint("DistanceX", -1, 1, 0, 3, Q("4 mm")),
    Sketcher.Constraint("DistanceY", -1, 1, 0, 3, Q("199.5 mm")),
])
pocket24 = body.newObject("PartDesign::Pocket", "Pocket023")
pocket24.Profile = sketch25
pocket24.Type = "ThroughAll"

# Sketch on XY plane
sketch26 = body.newObject("Sketcher::SketchObject", "Sketch025")
sketch26.AttachmentSupport = (doc.getObject("XY_Plane"), [""])
sketch26.MapMode = "FlatFace"
sketch26.AttachmentOffset = App.Placement(App.Vector(0, 0, 8.4), App.Rotation())
sketch26.addGeometry(Part.Circle(App.Vector(4, 208, 0), App.Vector(0, 0, 1), 1), False)
sketch26.addConstraint([
    Sketcher.Constraint("Diameter", 0, Q("2 mm")),
    Sketcher.Constraint("DistanceX", -1, 1, 0, 3, Q("4 mm")),
    Sketcher.Constraint("DistanceY", -1, 1, 0, 3, Q("208 mm")),
])
pocket25 = body.newObject("PartDesign::Pocket", "Pocket024")
pocket25.Profile = sketch26
pocket25.Type = "ThroughAll"

# Sketch on XY plane
sketch27 = body.newObject("Sketcher::SketchObject", "Sketch026")
sketch27.AttachmentSupport = (doc.getObject("XY_Plane"), [""])
sketch27.MapMode = "FlatFace"
sketch27.AttachmentOffset = App.Placement(App.Vector(0, 0, 8.4), App.Rotation())
sketch27.addGeometry(Part.Circle(App.Vector(4, 216.5, 0), App.Vector(0, 0, 1), 1), False)
sketch27.addConstraint([
    Sketcher.Constraint("Diameter", 0, Q("2 mm")),
    Sketcher.Constraint("DistanceX", -1, 1, 0, 3, Q("4 mm")),
    Sketcher.Constraint("DistanceY", -1, 1, 0, 3, Q("216.5 mm")),
])
pocket26 = body.newObject("PartDesign::Pocket", "Pocket025")
pocket26.Profile = sketch27
pocket26.Type = "ThroughAll"

# Sketch on XY plane
sketch28 = body.newObject("Sketcher::SketchObject", "Sketch027")
sketch28.AttachmentSupport = (doc.getObject("XY_Plane"), [""])
sketch28.MapMode = "FlatFace"
sketch28.AttachmentOffset = App.Placement(App.Vector(0, 0, 8.4), App.Rotation())
sketch28.addGeometry(Part.Circle(App.Vector(4, 225, 0), App.Vector(0, 0, 1), 1), False)
sketch28.addConstraint([
    Sketcher.Constraint("Diameter", 0, Q("2 mm")),
    Sketcher.Constraint("DistanceX", -1, 1, 0, 3, Q("4 mm")),
    Sketcher.Constraint("DistanceY", -1, 1, 0, 3, Q("225 mm")),
])
pocket27 = body.newObject("PartDesign::Pocket", "Pocket026")
pocket27.Profile = sketch28
pocket27.Type = "ThroughAll"

# Sketch on XY plane
sketch29 = body.newObject("Sketcher::SketchObject", "Sketch028")
sketch29.AttachmentSupport = (doc.getObject("XY_Plane"), [""])
sketch29.MapMode = "FlatFace"
sketch29.AttachmentOffset = App.Placement(App.Vector(0, 0, 8.4), App.Rotation())
sketch29.addGeometry(Part.Circle(App.Vector(4, 233.5, 0), App.Vector(0, 0, 1), 1), False)
sketch29.addConstraint([
    Sketcher.Constraint("Diameter", 0, Q("2 mm")),
    Sketcher.Constraint("DistanceX", -1, 1, 0, 3, Q("4 mm")),
    Sketcher.Constraint("DistanceY", -1, 1, 0, 3, Q("233.5 mm")),
])
pocket28 = body.newObject("PartDesign::Pocket", "Pocket027")
pocket28.Profile = sketch29
pocket28.Type = "ThroughAll"

# Sketch on XY plane
sketch30 = body.newObject("Sketcher::SketchObject", "Sketch029")
sketch30.AttachmentSupport = (doc.getObject("XY_Plane"), [""])
sketch30.MapMode = "FlatFace"
sketch30.AttachmentOffset = App.Placement(App.Vector(0, 0, 8.4), App.Rotation())
sketch30.addGeometry(Part.Circle(App.Vector(4, 242, 0), App.Vector(0, 0, 1), 1), False)
sketch30.addConstraint([
    Sketcher.Constraint("Diameter", 0, Q("2 mm")),
    Sketcher.Constraint("DistanceX", -1, 1, 0, 3, Q("4 mm")),
    Sketcher.Constraint("DistanceY", -1, 1, 0, 3, Q("242 mm")),
])
pocket29 = body.newObject("PartDesign::Pocket", "Pocket028")
pocket29.Profile = sketch30
pocket29.Type = "ThroughAll"

# Sketch on XY plane
sketch31 = body.newObject("Sketcher::SketchObject", "Sketch030")
sketch31.AttachmentSupport = (doc.getObject("XY_Plane"), [""])
sketch31.MapMode = "FlatFace"
sketch31.AttachmentOffset = App.Placement(App.Vector(0, 0, 8.4), App.Rotation())
sketch31.addGeometry(Part.Circle(App.Vector(4, 250.5, 0), App.Vector(0, 0, 1), 1), False)
sketch31.addConstraint([
    Sketcher.Constraint("Diameter", 0, Q("2 mm")),
    Sketcher.Constraint("DistanceX", -1, 1, 0, 3, Q("4 mm")),
    Sketcher.Constraint("DistanceY", -1, 1, 0, 3, Q("250.5 mm")),
])
pocket30 = body.newObject("PartDesign::Pocket", "Pocket029")
pocket30.Profile = sketch31
pocket30.Type = "ThroughAll"

# Sketch on XY plane
sketch32 = body.newObject("Sketcher::SketchObject", "Sketch031")
sketch32.AttachmentSupport = (doc.getObject("XY_Plane"), [""])
sketch32.MapMode = "FlatFace"
sketch32.AttachmentOffset = App.Placement(App.Vector(0, 0, 8.4), App.Rotation())
add_polygon(sketch32, [(3, 330), (3, 265), (27, 265), (27, 330)])  # lines 0-3
sketch32.addConstraint([
    Sketcher.Constraint("Vertical", 0),
    Sketcher.Constraint("Horizontal", 1),
    Sketcher.Constraint("Vertical", 2),
    Sketcher.Constraint("Horizontal", 3),
    Sketcher.Constraint("DistanceX", 1, 1, 1, 2, Q("24 mm")),
    Sketcher.Constraint("DistanceY", 0, 2, 0, 1, Q("65 mm")),
    Sketcher.Constraint("DistanceX", -1, 1, 0, 2, Q("3 mm")),
    Sketcher.Constraint("DistanceY", -1, 1, 0, 2, Q("265 mm")),
])
pocket31 = body.newObject("PartDesign::Pocket", "Pocket030")
pocket31.Profile = sketch32
pocket31.Length = 1.6

# Sketch on XY plane
sketch33 = body.newObject("Sketcher::SketchObject", "Sketch032")
sketch33.AttachmentSupport = (doc.getObject("XY_Plane"), [""])
sketch33.MapMode = "FlatFace"
sketch33.AttachmentOffset = App.Placement(App.Vector(0, 0, 6.8), App.Rotation())
add_polygon(sketch33, [(3, 330), (3, 320), (27, 320), (27, 330)])  # lines 0-3
sketch33.addConstraint([
    Sketcher.Constraint("Vertical", 0),
    Sketcher.Constraint("Horizontal", 1),
    Sketcher.Constraint("Vertical", 2),
    Sketcher.Constraint("Horizontal", 3),
    Sketcher.Constraint("DistanceX", 1, 1, 1, 2, Q("24 mm")),
    Sketcher.Constraint("DistanceY", 0, 2, 0, 1, Q("10 mm")),
    Sketcher.Constraint("DistanceX", -1, 1, 0, 2, Q("3 mm")),
    Sketcher.Constraint("DistanceY", -1, 1, 0, 2, Q("320 mm")),
])
pocket32 = body.newObject("PartDesign::Pocket", "Pocket031")
pocket32.Profile = sketch33
pocket32.Length = 1.6

# Sketch on XZ plane
sketch34 = body.newObject("Sketcher::SketchObject", "Sketch033")
sketch34.AttachmentSupport = (doc.getObject("XZ_Plane"), [""])
sketch34.MapMode = "FlatFace"
sketch34.AttachmentOffset = App.Placement(App.Vector(0, 0, -330), App.Rotation())
add_polygon(sketch34, [(0, 0), (0, 8.4), (30, 8.4), (30, 0)])  # lines 0-3
sketch34.addConstraint([
    Sketcher.Constraint("Vertical", 0),
    Sketcher.Constraint("Horizontal", 1),
    Sketcher.Constraint("Vertical", 2),
    Sketcher.Constraint("Horizontal", 3),
    Sketcher.Constraint("Coincident", 3, 2, -1, 1),
    Sketcher.Constraint("DistanceX", 1, 1, 1, 2, Q("30 mm")),
    Sketcher.Constraint("DistanceY", 0, 1, 0, 2, Q("8.4 mm")),
])
pad2 = body.newObject("PartDesign::Pad", "Pad001")
pad2.Profile = sketch34
pad2.Length = 2
pad2.Reversed = True

# Sketch on XY plane
sketch35 = body.newObject("Sketcher::SketchObject", "Sketch034")
sketch35.AttachmentSupport = (doc.getObject("XY_Plane"), [""])
sketch35.MapMode = "FlatFace"
sketch35.AttachmentOffset = App.Placement(App.Vector(0, 0, 8.4), App.Rotation())
sketch35.addGeometry([
    Part.Circle(App.Vector(10.5, 16, 0), App.Vector(0, 0, 1), 2.5),
    Part.Circle(App.Vector(19.5, 257, 0), App.Vector(0, 0, 1), 2.5),
    Part.Circle(App.Vector(19.5, 16, 0), App.Vector(0, 0, 1), 2.5),
    Part.Circle(App.Vector(10.5, 257, 0), App.Vector(0, 0, 1), 2.5),
], False)
sketch35.addConstraint([
    Sketcher.Constraint("Equal", 0, 1),
    Sketcher.Constraint("Equal", 1, 2),
    Sketcher.Constraint("Equal", 2, 3),
    Sketcher.Constraint("Horizontal", 0, 3, 2, 3),
    Sketcher.Constraint("Horizontal", 1, 3, 3, 3),
    Sketcher.Constraint("Vertical", 1, 3, 2, 3),
    Sketcher.Constraint("Vertical", 0, 3, 3, 3),
    Sketcher.Constraint("Diameter", 0, Q("5 mm")),
    Sketcher.Constraint("DistanceY", -1, 1, 0, 3, Q("16 mm")),
    Sketcher.Constraint("DistanceY", -1, 1, 1, 3, Q("257 mm")),
    Sketcher.Constraint("DistanceX", 0, 3, 1, 3, Q("9 mm")),
    Sketcher.Constraint("DistanceX", -1, 1, 0, 3, Q("10.5 mm")),
])
pocket33 = body.newObject("PartDesign::Pocket", "Pocket032")
pocket33.Profile = sketch35
pocket33.Type = "ThroughAll"

doc.recompute()
